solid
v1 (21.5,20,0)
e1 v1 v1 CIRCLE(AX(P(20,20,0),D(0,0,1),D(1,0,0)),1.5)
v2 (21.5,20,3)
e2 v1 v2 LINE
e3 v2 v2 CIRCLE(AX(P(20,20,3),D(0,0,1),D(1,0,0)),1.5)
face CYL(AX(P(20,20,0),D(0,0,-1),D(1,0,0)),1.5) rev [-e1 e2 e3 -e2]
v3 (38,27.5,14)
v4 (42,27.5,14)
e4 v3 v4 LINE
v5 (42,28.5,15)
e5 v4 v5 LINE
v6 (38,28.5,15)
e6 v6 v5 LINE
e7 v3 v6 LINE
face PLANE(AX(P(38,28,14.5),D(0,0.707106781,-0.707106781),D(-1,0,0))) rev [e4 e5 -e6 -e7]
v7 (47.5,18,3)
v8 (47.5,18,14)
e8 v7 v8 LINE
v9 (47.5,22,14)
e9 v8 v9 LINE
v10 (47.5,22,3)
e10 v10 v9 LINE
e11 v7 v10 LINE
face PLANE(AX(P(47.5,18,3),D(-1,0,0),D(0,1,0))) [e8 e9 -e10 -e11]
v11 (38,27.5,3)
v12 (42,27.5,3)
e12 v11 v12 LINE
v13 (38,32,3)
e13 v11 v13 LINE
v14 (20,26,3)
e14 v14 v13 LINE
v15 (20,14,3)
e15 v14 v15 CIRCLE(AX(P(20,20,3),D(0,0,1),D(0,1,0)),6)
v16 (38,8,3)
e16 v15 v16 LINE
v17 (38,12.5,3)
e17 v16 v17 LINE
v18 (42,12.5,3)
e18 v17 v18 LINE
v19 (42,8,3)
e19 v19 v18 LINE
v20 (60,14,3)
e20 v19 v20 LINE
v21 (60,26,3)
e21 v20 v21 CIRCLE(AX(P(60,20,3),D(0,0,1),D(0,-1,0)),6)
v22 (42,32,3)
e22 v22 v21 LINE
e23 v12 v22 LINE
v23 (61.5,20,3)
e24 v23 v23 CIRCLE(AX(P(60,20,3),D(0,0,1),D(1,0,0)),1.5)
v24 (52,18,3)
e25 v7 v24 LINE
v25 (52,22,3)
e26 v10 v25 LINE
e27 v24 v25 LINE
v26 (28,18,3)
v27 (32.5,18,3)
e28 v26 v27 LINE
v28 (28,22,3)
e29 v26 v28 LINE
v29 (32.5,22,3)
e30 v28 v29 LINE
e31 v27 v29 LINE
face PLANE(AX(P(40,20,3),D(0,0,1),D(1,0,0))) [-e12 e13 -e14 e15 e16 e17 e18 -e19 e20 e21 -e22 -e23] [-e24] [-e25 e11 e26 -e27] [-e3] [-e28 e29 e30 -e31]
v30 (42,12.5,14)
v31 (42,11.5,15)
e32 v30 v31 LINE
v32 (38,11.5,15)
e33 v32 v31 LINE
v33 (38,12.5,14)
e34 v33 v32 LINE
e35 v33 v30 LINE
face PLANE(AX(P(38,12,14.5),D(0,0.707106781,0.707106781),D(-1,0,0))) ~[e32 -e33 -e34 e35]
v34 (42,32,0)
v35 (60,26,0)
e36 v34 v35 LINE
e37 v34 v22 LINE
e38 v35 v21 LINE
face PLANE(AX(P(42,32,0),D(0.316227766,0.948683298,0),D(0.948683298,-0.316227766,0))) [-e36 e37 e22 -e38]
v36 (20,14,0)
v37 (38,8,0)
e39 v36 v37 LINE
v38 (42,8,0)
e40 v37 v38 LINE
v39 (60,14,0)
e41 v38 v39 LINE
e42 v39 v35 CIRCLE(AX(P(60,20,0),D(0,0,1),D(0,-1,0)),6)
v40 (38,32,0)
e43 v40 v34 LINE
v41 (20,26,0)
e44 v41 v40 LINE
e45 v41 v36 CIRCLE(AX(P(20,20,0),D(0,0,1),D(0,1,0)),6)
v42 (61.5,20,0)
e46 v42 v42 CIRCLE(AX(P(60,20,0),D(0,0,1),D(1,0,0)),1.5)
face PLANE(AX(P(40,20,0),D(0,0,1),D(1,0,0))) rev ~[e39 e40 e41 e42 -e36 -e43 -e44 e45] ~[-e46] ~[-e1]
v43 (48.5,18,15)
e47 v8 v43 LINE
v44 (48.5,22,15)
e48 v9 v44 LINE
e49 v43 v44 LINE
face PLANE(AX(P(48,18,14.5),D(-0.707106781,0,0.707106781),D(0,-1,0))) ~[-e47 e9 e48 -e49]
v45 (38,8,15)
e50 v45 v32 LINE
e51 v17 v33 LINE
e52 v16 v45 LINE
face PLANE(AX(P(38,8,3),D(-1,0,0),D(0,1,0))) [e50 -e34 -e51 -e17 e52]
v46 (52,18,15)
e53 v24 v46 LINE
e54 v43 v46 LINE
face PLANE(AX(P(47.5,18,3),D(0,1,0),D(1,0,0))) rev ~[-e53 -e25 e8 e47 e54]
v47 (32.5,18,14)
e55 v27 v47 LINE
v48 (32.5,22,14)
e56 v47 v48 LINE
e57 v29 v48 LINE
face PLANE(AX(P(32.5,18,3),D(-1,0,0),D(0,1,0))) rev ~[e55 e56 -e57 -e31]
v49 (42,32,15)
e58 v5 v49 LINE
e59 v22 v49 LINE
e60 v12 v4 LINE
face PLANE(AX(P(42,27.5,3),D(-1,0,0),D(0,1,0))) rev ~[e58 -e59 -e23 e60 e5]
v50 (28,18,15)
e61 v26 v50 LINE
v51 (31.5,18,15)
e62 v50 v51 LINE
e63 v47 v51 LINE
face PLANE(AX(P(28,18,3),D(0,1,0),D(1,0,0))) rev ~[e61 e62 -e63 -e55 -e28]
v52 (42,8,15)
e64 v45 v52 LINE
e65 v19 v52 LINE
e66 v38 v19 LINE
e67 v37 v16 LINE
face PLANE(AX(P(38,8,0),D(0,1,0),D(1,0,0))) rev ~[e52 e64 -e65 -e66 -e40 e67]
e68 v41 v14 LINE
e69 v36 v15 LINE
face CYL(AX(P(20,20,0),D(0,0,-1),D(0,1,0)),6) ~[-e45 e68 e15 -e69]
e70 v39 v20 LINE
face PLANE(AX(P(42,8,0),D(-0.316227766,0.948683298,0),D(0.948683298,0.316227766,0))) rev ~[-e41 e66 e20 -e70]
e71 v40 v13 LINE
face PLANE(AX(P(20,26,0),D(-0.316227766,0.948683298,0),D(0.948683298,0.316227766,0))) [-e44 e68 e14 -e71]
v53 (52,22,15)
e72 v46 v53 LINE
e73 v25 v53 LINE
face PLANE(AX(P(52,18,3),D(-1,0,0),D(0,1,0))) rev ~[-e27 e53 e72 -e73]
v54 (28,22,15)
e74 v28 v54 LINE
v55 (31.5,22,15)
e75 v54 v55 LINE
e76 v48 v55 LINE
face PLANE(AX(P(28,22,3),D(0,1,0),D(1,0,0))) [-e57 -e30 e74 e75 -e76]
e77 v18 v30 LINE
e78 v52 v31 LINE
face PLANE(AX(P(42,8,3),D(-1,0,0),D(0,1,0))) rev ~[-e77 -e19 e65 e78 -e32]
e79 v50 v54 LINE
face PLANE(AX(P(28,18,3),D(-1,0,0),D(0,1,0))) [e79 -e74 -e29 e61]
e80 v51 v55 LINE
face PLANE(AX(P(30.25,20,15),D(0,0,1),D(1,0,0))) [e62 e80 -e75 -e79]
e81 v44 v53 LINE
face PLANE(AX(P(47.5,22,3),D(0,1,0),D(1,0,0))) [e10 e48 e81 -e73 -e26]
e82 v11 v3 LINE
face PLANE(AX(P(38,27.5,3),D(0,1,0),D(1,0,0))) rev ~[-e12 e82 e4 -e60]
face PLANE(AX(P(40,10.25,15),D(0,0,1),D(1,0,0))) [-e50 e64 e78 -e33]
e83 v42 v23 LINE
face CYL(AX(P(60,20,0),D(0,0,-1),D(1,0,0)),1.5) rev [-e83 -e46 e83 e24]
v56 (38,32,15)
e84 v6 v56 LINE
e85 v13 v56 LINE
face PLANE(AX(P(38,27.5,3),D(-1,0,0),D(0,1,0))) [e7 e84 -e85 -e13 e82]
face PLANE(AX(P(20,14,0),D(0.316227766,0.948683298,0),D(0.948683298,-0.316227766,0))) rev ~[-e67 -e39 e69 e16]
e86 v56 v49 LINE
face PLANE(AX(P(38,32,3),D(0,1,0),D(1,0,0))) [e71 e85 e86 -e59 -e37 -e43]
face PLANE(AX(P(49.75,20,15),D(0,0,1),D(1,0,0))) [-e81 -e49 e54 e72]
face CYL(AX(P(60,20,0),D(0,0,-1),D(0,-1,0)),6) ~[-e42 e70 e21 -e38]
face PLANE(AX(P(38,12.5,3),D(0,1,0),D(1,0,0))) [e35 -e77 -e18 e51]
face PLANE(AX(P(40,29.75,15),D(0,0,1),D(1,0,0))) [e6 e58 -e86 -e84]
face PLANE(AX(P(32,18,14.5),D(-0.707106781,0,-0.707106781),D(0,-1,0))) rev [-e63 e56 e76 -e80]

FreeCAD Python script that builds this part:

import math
import FreeCAD as App
import Part
import Sketcher


def edges_at(feature, points):
    """Names of the edges that pass closest to the given points."""
    edges = feature.Shape.Edges
    near = lambda p: min(range(len(edges)), key=lambda i: edges[i].distToShape(Part.Vertex(*p))[0])
    return sorted({f"Edge{near(p) + 1}" for p in points})

doc = App.newDocument("Part")
body = doc.addObject("PartDesign::Body", "Body")

# Sketch on XY plane
sketch1 = body.newObject("Sketcher::SketchObject", "Sketch")
sketch1.AttachmentSupport = (doc.getObject("XY_Plane"), [""])
sketch1.MapMode = "FlatFace"
sketch1.addGeometry([
    Part.ArcOfCircle(Part.Circle(App.Vector(20, 20, 0), App.Vector(0, 0, 1), 6), math.radians(90), math.radians(270)),  # 0
    Part.LineSegment(App.Vector(20, 14, 0), App.Vector(38, 8, 0)),  # 1
    Part.LineSegment(App.Vector(38, 8, 0), App.Vector(42, 8, 0)),  # 2
    Part.LineSegment(App.Vector(42, 8, 0), App.Vector(60, 14, 0)),  # 3
    Part.ArcOfCircle(Part.Circle(App.Vector(60, 20, 0), App.Vector(0, 0, 1), 6), math.radians(-90), math.radians(90)),  # 4
    Part.LineSegment(App.Vector(60, 26, 0), App.Vector(42, 32, 0)),  # 5
    Part.LineSegment(App.Vector(42, 32, 0), App.Vector(38, 32, 0)),  # 6
    Part.LineSegment(App.Vector(38, 32, 0), App.Vector(20, 26, 0)),  # 7
    Part.Circle(App.Vector(20, 20, 0), App.Vector(0, 0, 1), 1.5),  # 8
    Part.Circle(App.Vector(60, 20, 0), App.Vector(0, 0, 1), 1.5),  # 9
], False)
sketch1.addConstraint([
    Sketcher.Constraint("Coincident", 0, 2, 1, 1),
    Sketcher.Constraint("Coincident", 1, 2, 2, 1),
    Sketcher.Constraint("Coincident", 2, 2, 3, 1),
    Sketcher.Constraint("Coincident", 3, 2, 4, 1),
    Sketcher.Constraint("Coincident", 4, 2, 5, 1),
    Sketcher.Constraint("Coincident", 5, 2, 6, 1),
    Sketcher.Constraint("Coincident", 6, 2, 7, 1),
    Sketcher.Constraint("Coincident", 7, 2, 0, 1),
    Sketcher.Constraint("Horizontal", 2),
    Sketcher.Constraint("Horizontal", 6),
    Sketcher.Constraint("Coincident", 8, 3, 0, 3),
    Sketcher.Constraint("Coincident", 9, 3, 4, 3),
    Sketcher.Constraint("Equal", 0, 4),
    Sketcher.Constraint("Equal", 8, 9),
    Sketcher.Constraint("Parallel", 1, 5),
    Sketcher.Constraint("Parallel", 3, 7),
    Sketcher.Constraint("Horizontal", 0, 3, 4, 3),
    Sketcher.Constraint("Vertical", 8, 3, 0, 2),
    Sketcher.Constraint("Vertical", 9, 3, 3, 2),
    Sketcher.Constraint("Vertical", 3, 2, 4, 2),
    Sketcher.Constraint("Vertical", 2, 2, 5, 2),
    Sketcher.Constraint("Vertical", 1, 2, 6, 2),
    Sketcher.Constraint("Vertical", 0, 2, 7, 2),
    Sketcher.Constraint("Diameter", 8, 3.0),
    Sketcher.Constraint("Radius", 0, 6.0),
    Sketcher.Constraint("DistanceX", 2, 1, 2, 2, 4.0),
    Sketcher.Constraint("DistanceX", -1, 1, 0, 3, 20.0),
    Sketcher.Constraint("DistanceY", -1, 1, 0, 3, 20.0),
    Sketcher.Constraint("DistanceX", -1, 1, 4, 3, 60.0),
    Sketcher.Constraint("DistanceY", -1, 1, 1, 2, 8.0),
])
pad1 = body.newObject("PartDesign::Pad", "Pad")
pad1.Profile = sketch1
pad1.Length = 3

# Sketch on XY plane
sketch2 = body.newObject("Sketcher::SketchObject", "Sketch001")
sketch2.AttachmentSupport = (doc.getObject("XY_Plane"), [""])
sketch2.MapMode = "FlatFace"
sketch2.AttachmentOffset = App.Placement(App.Vector(0, 0, 3), App.Rotation())
sketch2.addGeometry([
    Part.LineSegment(App.Vector(38, 32, 0), App.Vector(38, 27.5, 0)),  # 0
    Part.LineSegment(App.Vector(38, 27.5, 0), App.Vector(42, 27.5, 0)),  # 1
    Part.LineSegment(App.Vector(42, 27.5, 0), App.Vector(42, 32, 0)),  # 2
    Part.LineSegment(App.Vector(42, 32, 0), App.Vector(38, 32, 0)),  # 3
    Part.LineSegment(App.Vector(38, 12.5, 0), App.Vector(38, 8, 0)),  # 4
    Part.LineSegment(App.Vector(38, 8, 0), App.Vector(42, 8, 0)),  # 5
    Part.LineSegment(App.Vector(42, 8, 0), App.Vector(42, 12.5, 0)),  # 6
    Part.LineSegment(App.Vector(42, 12.5, 0), App.Vector(38, 12.5, 0)),  # 7
    Part.LineSegment(App.Vector(28, 22, 0), App.Vector(28, 18, 0)),  # 8
    Part.LineSegment(App.Vector(28, 18, 0), App.Vector(32.5, 18, 0)),  # 9
    Part.LineSegment(App.Vector(32.5, 18, 0), App.Vector(32.5, 22, 0)),  # 10
    Part.LineSegment(App.Vector(32.5, 22, 0), App.Vector(28, 22, 0)),  # 11
    Part.LineSegment(App.Vector(47.5, 22, 0), App.Vector(47.5, 18, 0)),  # 12
    Part.LineSegment(App.Vector(47.5, 18, 0), App.Vector(52, 18, 0)),  # 13
    Part.LineSegment(App.Vector(52, 18, 0), App.Vector(52, 22, 0)),  # 14
    Part.LineSegment(App.Vector(52, 22, 0), App.Vector(47.5, 22, 0)),  # 15
], False)
sketch2.addConstraint([
    Sketcher.Constraint("Coincident", 0, 2, 1, 1),
    Sketcher.Constraint("Coincident", 1, 2, 2, 1),
    Sketcher.Constraint("Coincident", 2, 2, 3, 1),
    Sketcher.Constraint("Coincident", 3, 2, 0, 1),
    Sketcher.Constraint("Coincident", 4, 2, 5, 1),
    Sketcher.Constraint("Coincident", 5, 2, 6, 1),
    Sketcher.Constraint("Coincident", 6, 2, 7, 1),
    Sketcher.Constraint("Coincident", 7, 2, 4, 1),
    Sketcher.Constraint("Coincident", 8, 2, 9, 1),
    Sketcher.Constraint("Coincident", 9, 2, 10, 1),
    Sketcher.Constraint("Coincident", 10, 2, 11, 1),
    Sketcher.Constraint("Coincident", 11, 2, 8, 1),
    Sketcher.Constraint("Coincident", 12, 2, 13, 1),
    Sketcher.Constraint("Coincident", 13, 2, 14, 1),
    Sketcher.Constraint("Coincident", 14, 2, 15, 1),
    Sketcher.Constraint("Coincident", 15, 2, 12, 1),
    Sketcher.Constraint("Vertical", 0),
    Sketcher.Constraint("Horizontal", 1),
    Sketcher.Constraint("Vertical", 2),
    Sketcher.Constraint("Horizontal", 3),
    Sketcher.Constraint("Vertical", 4),
    Sketcher.Constraint("Horizontal", 5),
    Sketcher.Constraint("Vertical", 6),
    Sketcher.Constraint("Horizontal", 7),
    Sketcher.Constraint("Vertical", 8),
    Sketcher.Constraint("Horizontal", 9),
    Sketcher.Constraint("Vertical", 10),
    Sketcher.Constraint("Horizontal", 11),
    Sketcher.Constraint("Vertical", 12),
    Sketcher.Constraint("Horizontal", 13),
    Sketcher.Constraint("Vertical", 14),
    Sketcher.Constraint("Horizontal", 15),
    Sketcher.Constraint("Horizontal", 9, 2, 12, 2),
    Sketcher.Constraint("Horizontal", 11, 2, 14, 2),
    Sketcher.Constraint("Vertical", 3, 2, 4, 2),
    Sketcher.Constraint("Vertical", 2, 2, 5, 2),
    Sketcher.Constraint("Equal", 11, 13),
    Sketcher.Constraint("Equal", 15, 0),
    Sketcher.Constraint("Equal", 2, 4),
    Sketcher.Constraint("Equal", 7, 8),
    Sketcher.Constraint("DistanceX", 1, 1, 1, 2, 4.0),
    Sketcher.Constraint("DistanceX", 9, 1, 9, 2, 4.5),
    Sketcher.Constraint("DistanceX", -1, 1, 0, 2, 38.0),
    Sketcher.Constraint("DistanceY", -1, 1, 2, 2, 32.0),
    Sketcher.Constraint("DistanceY", -1, 1, 4, 2, 8.0),
    Sketcher.Constraint("DistanceX", -1, 1, 8, 2, 28.0),
    Sketcher.Constraint("DistanceY", -1, 1, 8, 2, 18.0),
    Sketcher.Constraint("DistanceX", -1, 1, 13, 2, 52.0),
])
pad2 = body.newObject("PartDesign::Pad", "Pad001")
pad2.Profile = sketch2
pad2.Length = 12
doc.recompute()

chamfer = body.newObject("PartDesign::Chamfer", "Chamfer")
chamfer.Base = (pad2, edges_at(pad2, [
    (32.5, 20, 15),
    (40, 12.5, 15),
    (40, 27.5, 15),
    (47.5, 20, 15),
]))
chamfer.Size = 1

doc.recompute()
